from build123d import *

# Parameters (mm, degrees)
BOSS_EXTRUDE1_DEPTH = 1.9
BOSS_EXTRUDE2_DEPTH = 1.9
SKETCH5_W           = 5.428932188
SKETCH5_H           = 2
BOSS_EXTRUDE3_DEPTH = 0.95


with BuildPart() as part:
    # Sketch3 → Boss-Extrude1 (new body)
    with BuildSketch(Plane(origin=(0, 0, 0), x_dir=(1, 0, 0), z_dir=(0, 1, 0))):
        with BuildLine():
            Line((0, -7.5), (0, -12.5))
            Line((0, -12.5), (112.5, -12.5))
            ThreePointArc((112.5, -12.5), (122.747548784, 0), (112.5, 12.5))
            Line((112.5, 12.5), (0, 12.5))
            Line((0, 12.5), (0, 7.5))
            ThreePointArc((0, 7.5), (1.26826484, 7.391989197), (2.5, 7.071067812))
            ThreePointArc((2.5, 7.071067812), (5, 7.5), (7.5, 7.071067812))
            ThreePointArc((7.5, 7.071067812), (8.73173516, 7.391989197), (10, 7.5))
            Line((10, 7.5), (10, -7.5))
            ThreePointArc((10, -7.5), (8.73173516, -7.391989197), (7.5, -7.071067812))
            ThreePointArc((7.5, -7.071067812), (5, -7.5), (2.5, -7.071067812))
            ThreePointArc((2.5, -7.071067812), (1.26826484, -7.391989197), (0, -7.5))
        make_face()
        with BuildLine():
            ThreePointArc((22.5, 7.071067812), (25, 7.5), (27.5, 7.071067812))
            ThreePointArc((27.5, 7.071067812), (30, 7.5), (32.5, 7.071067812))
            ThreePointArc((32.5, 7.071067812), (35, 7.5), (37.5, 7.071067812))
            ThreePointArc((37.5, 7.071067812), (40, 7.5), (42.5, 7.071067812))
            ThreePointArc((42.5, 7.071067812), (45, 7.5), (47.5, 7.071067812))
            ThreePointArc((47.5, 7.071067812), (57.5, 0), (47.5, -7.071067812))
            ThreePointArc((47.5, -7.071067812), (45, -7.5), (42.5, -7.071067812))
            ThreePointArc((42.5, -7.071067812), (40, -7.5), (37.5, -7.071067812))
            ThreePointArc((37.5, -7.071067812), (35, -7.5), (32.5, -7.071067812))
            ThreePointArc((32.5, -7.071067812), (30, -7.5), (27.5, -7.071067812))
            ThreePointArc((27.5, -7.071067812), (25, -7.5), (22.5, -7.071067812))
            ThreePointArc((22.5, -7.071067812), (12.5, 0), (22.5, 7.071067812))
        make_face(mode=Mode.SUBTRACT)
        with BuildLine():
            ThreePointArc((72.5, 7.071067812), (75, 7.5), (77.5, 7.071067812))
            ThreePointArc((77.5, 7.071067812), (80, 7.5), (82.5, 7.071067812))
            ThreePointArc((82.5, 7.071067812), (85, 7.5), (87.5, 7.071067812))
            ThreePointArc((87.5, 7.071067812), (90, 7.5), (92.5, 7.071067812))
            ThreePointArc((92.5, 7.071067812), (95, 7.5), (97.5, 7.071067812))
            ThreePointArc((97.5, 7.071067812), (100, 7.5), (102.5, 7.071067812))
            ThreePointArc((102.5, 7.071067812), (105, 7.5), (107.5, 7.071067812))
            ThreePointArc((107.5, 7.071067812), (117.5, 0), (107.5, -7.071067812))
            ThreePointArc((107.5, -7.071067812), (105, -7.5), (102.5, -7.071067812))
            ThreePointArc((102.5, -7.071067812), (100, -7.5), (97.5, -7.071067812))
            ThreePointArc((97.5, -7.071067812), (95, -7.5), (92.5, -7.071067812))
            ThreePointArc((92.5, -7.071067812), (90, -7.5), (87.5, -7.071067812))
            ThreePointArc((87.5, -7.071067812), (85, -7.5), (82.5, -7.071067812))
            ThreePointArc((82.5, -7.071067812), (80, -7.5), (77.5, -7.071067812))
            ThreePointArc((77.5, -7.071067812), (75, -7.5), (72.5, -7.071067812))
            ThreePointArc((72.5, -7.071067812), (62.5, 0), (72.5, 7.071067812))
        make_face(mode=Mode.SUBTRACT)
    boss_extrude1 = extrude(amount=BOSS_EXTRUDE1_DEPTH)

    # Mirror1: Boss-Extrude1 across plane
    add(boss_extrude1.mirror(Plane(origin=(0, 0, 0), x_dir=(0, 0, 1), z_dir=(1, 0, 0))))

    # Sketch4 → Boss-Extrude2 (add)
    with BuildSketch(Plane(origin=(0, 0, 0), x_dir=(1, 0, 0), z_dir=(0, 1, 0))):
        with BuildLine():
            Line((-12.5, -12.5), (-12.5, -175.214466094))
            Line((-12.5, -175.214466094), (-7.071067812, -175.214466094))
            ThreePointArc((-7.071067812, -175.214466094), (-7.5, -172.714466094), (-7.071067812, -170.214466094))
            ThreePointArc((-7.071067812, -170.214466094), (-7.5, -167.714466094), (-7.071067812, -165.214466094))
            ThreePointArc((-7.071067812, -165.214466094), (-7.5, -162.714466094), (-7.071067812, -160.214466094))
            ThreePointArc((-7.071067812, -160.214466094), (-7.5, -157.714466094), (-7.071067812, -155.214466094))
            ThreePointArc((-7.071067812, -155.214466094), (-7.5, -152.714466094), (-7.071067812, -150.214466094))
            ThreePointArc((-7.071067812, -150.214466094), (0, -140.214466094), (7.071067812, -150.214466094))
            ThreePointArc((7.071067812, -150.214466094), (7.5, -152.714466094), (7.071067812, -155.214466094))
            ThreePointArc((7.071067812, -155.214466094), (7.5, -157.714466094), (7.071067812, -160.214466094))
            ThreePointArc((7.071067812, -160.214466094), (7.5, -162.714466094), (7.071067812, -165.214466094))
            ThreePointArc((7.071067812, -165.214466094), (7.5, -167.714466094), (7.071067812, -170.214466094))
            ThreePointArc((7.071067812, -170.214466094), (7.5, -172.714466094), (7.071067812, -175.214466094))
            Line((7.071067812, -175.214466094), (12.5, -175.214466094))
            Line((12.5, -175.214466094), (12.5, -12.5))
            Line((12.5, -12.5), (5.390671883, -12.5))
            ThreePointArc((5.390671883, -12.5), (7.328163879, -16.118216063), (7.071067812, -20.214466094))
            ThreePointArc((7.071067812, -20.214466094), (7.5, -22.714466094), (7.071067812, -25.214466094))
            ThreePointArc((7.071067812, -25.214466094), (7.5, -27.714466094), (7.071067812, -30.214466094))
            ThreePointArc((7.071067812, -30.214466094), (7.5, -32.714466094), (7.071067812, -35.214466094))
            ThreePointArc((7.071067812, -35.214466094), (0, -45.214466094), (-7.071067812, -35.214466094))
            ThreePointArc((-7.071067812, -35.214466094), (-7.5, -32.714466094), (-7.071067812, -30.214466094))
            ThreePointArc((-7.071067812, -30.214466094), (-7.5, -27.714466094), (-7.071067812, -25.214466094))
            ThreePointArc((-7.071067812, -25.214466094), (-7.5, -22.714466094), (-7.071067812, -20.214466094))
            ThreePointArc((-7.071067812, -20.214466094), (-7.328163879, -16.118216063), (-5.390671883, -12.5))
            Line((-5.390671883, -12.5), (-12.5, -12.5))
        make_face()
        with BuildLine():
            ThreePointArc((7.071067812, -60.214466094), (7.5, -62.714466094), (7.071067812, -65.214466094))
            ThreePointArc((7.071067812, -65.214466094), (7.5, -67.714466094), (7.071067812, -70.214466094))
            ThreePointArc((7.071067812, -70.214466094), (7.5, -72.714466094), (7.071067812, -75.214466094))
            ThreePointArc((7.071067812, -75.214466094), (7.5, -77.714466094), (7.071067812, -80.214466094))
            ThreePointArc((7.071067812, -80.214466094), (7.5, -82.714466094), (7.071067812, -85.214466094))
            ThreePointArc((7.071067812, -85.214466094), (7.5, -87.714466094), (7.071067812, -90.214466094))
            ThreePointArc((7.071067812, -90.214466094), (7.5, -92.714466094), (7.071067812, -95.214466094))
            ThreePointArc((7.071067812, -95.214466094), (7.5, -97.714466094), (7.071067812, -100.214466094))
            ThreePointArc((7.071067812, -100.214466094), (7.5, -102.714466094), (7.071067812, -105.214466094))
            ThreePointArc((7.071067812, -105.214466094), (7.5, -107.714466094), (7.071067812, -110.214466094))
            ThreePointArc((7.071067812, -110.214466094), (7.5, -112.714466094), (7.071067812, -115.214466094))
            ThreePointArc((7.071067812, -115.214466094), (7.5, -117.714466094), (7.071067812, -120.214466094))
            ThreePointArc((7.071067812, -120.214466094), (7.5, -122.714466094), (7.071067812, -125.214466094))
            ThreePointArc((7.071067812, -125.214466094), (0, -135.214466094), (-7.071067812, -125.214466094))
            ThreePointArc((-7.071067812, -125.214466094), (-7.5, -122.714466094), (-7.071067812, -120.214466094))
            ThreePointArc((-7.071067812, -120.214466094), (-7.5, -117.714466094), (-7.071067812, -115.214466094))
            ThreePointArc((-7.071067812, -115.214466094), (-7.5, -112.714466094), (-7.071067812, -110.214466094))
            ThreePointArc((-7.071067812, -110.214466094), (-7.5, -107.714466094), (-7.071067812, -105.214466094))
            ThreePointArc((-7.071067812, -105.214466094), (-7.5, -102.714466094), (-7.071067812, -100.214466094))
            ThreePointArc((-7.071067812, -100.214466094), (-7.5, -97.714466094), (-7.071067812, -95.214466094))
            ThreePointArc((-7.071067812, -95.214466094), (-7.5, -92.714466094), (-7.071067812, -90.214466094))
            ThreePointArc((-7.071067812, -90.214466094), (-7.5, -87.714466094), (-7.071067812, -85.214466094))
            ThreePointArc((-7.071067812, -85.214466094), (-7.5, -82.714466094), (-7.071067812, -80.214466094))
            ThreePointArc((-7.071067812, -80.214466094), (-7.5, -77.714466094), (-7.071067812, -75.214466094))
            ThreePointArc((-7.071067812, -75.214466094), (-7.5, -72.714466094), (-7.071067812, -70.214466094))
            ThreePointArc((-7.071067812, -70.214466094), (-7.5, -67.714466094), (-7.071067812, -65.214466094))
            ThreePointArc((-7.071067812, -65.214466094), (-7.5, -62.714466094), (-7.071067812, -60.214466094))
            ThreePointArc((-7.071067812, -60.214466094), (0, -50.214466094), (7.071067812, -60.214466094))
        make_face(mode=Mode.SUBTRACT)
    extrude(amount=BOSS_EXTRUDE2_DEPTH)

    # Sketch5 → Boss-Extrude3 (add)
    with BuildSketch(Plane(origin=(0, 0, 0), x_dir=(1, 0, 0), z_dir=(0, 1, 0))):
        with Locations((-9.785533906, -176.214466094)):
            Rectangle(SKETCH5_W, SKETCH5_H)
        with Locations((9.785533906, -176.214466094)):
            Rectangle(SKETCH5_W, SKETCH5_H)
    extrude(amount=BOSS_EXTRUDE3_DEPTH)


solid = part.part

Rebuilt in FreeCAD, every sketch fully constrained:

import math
import FreeCAD as App
import Part
import Sketcher

V = App.Vector
Q = App.Units.Quantity

doc = App.newDocument("Part")
body = doc.addObject("PartDesign::Body", "Body")

# Sketch on XZ plane
sketch1 = body.newObject("Sketcher::SketchObject", "Sketch")
sketch1.AttachmentSupport = (doc.getObject("XZ_Plane"), [""])
sketch1.MapMode = "FlatFace"
sketch1.addGeometry(Part.LineSegment(V(0, 7.5, 0), V(0, 12.5, 0)), False)
sketch1.addGeometry(Part.LineSegment(V(0, 12.5, 0), V(112.5, 12.5, 0)), False)
sketch1.addGeometry(Part.ArcOfCircle(Part.Circle(V(110, 0, 0), V(0, 0, 1), 12.7), math.radians(-79), math.radians(79)), False)
sketch1.addGeometry(Part.LineSegment(V(112.5, -12.5, 0), V(0, -12.5, 0)), False)
sketch1.addGeometry(Part.LineSegment(V(0, -12.5, 0), V(0, -7.5, 0)), False)
sketch1.addGeometry(Part.ArcOfCircle(Part.Circle(V(0, 0, 0), V(0, 0, 1), 7.5), math.radians(-90), math.radians(-70.53)), False)
sketch1.addGeometry(Part.ArcOfCircle(Part.Circle(V(5, 0, 0), V(0, 0, 1), 7.5), math.radians(-109), math.radians(-71)), False)
sketch1.addGeometry(Part.ArcOfCircle(Part.Circle(V(10, 0, 0), V(0, 0, 1), 7.5), math.radians(-109.47), math.radians(-90)), False)
sketch1.addGeometry(Part.LineSegment(V(10, -7.5, 0), V(10, 7.5, 0)), False)
sketch1.addGeometry(Part.ArcOfCircle(Part.Circle(V(10, 0, 0), V(0, 0, 1), 7.5), math.radians(90), math.radians(109.47)), False)
sketch1.addGeometry(Part.ArcOfCircle(Part.Circle(V(5, 0, 0), V(0, 0, 1), 7.5), math.radians(71), math.radians(109)), False)
sketch1.addGeometry(Part.ArcOfCircle(Part.Circle(V(0, 0, 0), V(0, 0, 1), 7.5), math.radians(70.53), math.radians(90)), False)
sketch1.addGeometry(Part.ArcOfCircle(Part.Circle(V(20, 0, 0), V(0, 0, 1), 7.5), math.radians(71), math.radians(289)), False)
sketch1.addGeometry(Part.ArcOfCircle(Part.Circle(V(25, 0, 0), V(0, 0, 1), 7.5), math.radians(-109), math.radians(-71)), False)
sketch1.addGeometry(Part.ArcOfCircle(Part.Circle(V(30, 0, 0), V(0, 0, 1), 7.5), math.radians(-109), math.radians(-71)), False)
sketch1.addGeometry(Part.ArcOfCircle(Part.Circle(V(35, 0, 0), V(0, 0, 1), 7.5), math.radians(-109), math.radians(-71)), False)
sketch1.addGeometry(Part.ArcOfCircle(Part.Circle(V(40, 0, 0), V(0, 0, 1), 7.5), math.radians(-109), math.radians(-71)), False)
sketch1.addGeometry(Part.ArcOfCircle(Part.Circle(V(45, 0, 0), V(0, 0, 1), 7.5), math.radians(-109), math.radians(-71)), False)
sketch1.addGeometry(Part.ArcOfCircle(Part.Circle(V(50, 0, 0), V(0, 0, 1), 7.5), math.radians(-109), math.radians(109)), False)
sketch1.addGeometry(Part.ArcOfCircle(Part.Circle(V(45, 0, 0), V(0, 0, 1), 7.5), math.radians(71), math.radians(109)), False)
sketch1.addGeometry(Part.ArcOfCircle(Part.Circle(V(40, 0, 0), V(0, 0, 1), 7.5), math.radians(71), math.radians(109)), False)
sketch1.addGeometry(Part.ArcOfCircle(Part.Circle(V(35, 0, 0), V(0, 0, 1), 7.5), math.radians(71), math.radians(109)), False)
sketch1.addGeometry(Part.ArcOfCircle(Part.Circle(V(30, 0, 0), V(0, 0, 1), 7.5), math.radians(71), math.radians(109)), False)
sketch1.addGeometry(Part.ArcOfCircle(Part.Circle(V(25, 0, 0), V(0, 0, 1), 7.5), math.radians(71), math.radians(109)), False)
sketch1.addGeometry(Part.ArcOfCircle(Part.Circle(V(70, 0, 0), V(0, 0, 1), 7.5), math.radians(71), math.radians(289)), False)
sketch1.addGeometry(Part.ArcOfCircle(Part.Circle(V(75, 0, 0), V(0, 0, 1), 7.5), math.radians(-109), math.radians(-71)), False)
sketch1.addGeometry(Part.ArcOfCircle(Part.Circle(V(80, 0, 0), V(0, 0, 1), 7.5), math.radians(-109), math.radians(-71)), False)
sketch1.addGeometry(Part.ArcOfCircle(Part.Circle(V(85, 0, 0), V(0, 0, 1), 7.5), math.radians(-109), math.radians(-71)), False)
sketch1.addGeometry(Part.ArcOfCircle(Part.Circle(V(90, 0, 0), V(0, 0, 1), 7.5), math.radians(-109), math.radians(-71)), False)
sketch1.addGeometry(Part.ArcOfCircle(Part.Circle(V(95, 0, 0), V(0, 0, 1), 7.5), math.radians(-109), math.radians(-71)), False)
sketch1.addGeometry(Part.ArcOfCircle(Part.Circle(V(100, 0, 0), V(0, 0, 1), 7.5), math.radians(-109), math.radians(-71)), False)
sketch1.addGeometry(Part.ArcOfCircle(Part.Circle(V(105, 0, 0), V(0, 0, 1), 7.5), math.radians(-109), math.radians(-71)), False)
sketch1.addGeometry(Part.ArcOfCircle(Part.Circle(V(110, 0, 0), V(0, 0, 1), 7.5), math.radians(-109), math.radians(109)), False)
sketch1.addGeometry(Part.ArcOfCircle(Part.Circle(V(105, 0, 0), V(0, 0, 1), 7.5), math.radians(71), math.radians(109)), False)
sketch1.addGeometry(Part.ArcOfCircle(Part.Circle(V(100, 0, 0), V(0, 0, 1), 7.5), math.radians(71), math.radians(109)), False)
sketch1.addGeometry(Part.ArcOfCircle(Part.Circle(V(95, 0, 0), V(0, 0, 1), 7.5), math.radians(71), math.radians(109)), False)
sketch1.addGeometry(Part.ArcOfCircle(Part.Circle(V(90, 0, 0), V(0, 0, 1), 7.5), math.radians(71), math.radians(109)), False)
sketch1.addGeometry(Part.ArcOfCircle(Part.Circle(V(85, 0, 0), V(0, 0, 1), 7.5), math.radians(71), math.radians(109)), False)
sketch1.addGeometry(Part.ArcOfCircle(Part.Circle(V(80, 0, 0), V(0, 0, 1), 7.5), math.radians(71), math.radians(109)), False)
sketch1.addGeometry(Part.ArcOfCircle(Part.Circle(V(75, 0, 0), V(0, 0, 1), 7.5), math.radians(71), math.radians(109)), False)
sketch1.addConstraint(Sketcher.Constraint("Coincident", 0, 2, 1, 1))
sketch1.addConstraint(Sketcher.Constraint("Coincident", 1, 2, 2, 2))
sketch1.addConstraint(Sketcher.Constraint("Coincident", 2, 1, 3, 1))
sketch1.addConstraint(Sketcher.Constraint("Coincident", 3, 2, 4, 1))
sketch1.addConstraint(Sketcher.Constraint("Coincident", 4, 2, 5, 1))
sketch1.addConstraint(Sketcher.Constraint("Coincident", 5, 2, 6, 1))
sketch1.addConstraint(Sketcher.Constraint("Coincident", 6, 2, 7, 1))
sketch1.addConstraint(Sketcher.Constraint("Coincident", 7, 2, 8, 1))
sketch1.addConstraint(Sketcher.Constraint("Coincident", 8, 2, 9, 1))
sketch1.addConstraint(Sketcher.Constraint("Coincident", 9, 2, 10, 1))
sketch1.addConstraint(Sketcher.Constraint("Coincident", 10, 2, 11, 1))
sketch1.addConstraint(Sketcher.Constraint("Coincident", 11, 2, 0, 1))
sketch1.addConstraint(Sketcher.Constraint("Coincident", 12, 2, 13, 1))
sketch1.addConstraint(Sketcher.Constraint("Coincident", 13, 2, 14, 1))
sketch1.addConstraint(Sketcher.Constraint("Coincident", 14, 2, 15, 1))
sketch1.addConstraint(Sketcher.Constraint("Coincident", 15, 2, 16, 1))
sketch1.addConstraint(Sketcher.Constraint("Coincident", 16, 2, 17, 1))
sketch1.addConstraint(Sketcher.Constraint("Coincident", 17, 2, 18, 1))
sketch1.addConstraint(Sketcher.Constraint("Coincident", 18, 2, 19, 1))
sketch1.addConstraint(Sketcher.Constraint("Coincident", 19, 2, 20, 1))
sketch1.addConstraint(Sketcher.Constraint("Coincident", 20, 2, 21, 1))
sketch1.addConstraint(Sketcher.Constraint("Coincident", 21, 2, 22, 1))
sketch1.addConstraint(Sketcher.Constraint("Coincident", 22, 2, 23, 1))
sketch1.addConstraint(Sketcher.Constraint("Coincident", 23, 2, 12, 1))
sketch1.addConstraint(Sketcher.Constraint("Coincident", 24, 2, 25, 1))
sketch1.addConstraint(Sketcher.Constraint("Coincident", 25, 2, 26, 1))
sketch1.addConstraint(Sketcher.Constraint("Coincident", 26, 2, 27, 1))
sketch1.addConstraint(Sketcher.Constraint("Coincident", 27, 2, 28, 1))
sketch1.addConstraint(Sketcher.Constraint("Coincident", 28, 2, 29, 1))
sketch1.addConstraint(Sketcher.Constraint("Coincident", 29, 2, 30, 1))
sketch1.addConstraint(Sketcher.Constraint("Coincident", 30, 2, 31, 1))
sketch1.addConstraint(Sketcher.Constraint("Coincident", 31, 2, 32, 1))
sketch1.addConstraint(Sketcher.Constraint("Coincident", 32, 2, 33, 1))
sketch1.addConstraint(Sketcher.Constraint("Coincident", 33, 2, 34, 1))
sketch1.addConstraint(Sketcher.Constraint("Coincident", 34, 2, 35, 1))
sketch1.addConstraint(Sketcher.Constraint("Coincident", 35, 2, 36, 1))
sketch1.addConstraint(Sketcher.Constraint("Coincident", 36, 2, 37, 1))
sketch1.addConstraint(Sketcher.Constraint("Coincident", 37, 2, 38, 1))
sketch1.addConstraint(Sketcher.Constraint("Coincident", 38, 2, 39, 1))
sketch1.addConstraint(Sketcher.Constraint("Coincident", 39, 2, 24, 1))
sketch1.addConstraint(Sketcher.Constraint("Vertical", 0))
sketch1.addConstraint(Sketcher.Constraint("Horizontal", 1))
sketch1.addConstraint(Sketcher.Constraint("Horizontal", 3))
sketch1.addConstraint(Sketcher.Constraint("Vertical", 4))
sketch1.addConstraint(Sketcher.Constraint("Vertical", 8))
sketch1.addConstraint(Sketcher.Constraint("Coincident", 5, 3, -1, 1))
sketch1.addConstraint(Sketcher.Constraint("Coincident", 11, 3, -1, 1))
sketch1.addConstraint(Sketcher.Constraint("Coincident", 9, 3, 7, 3))
sketch1.addConstraint(Sketcher.Constraint("Coincident", 10, 3, 6, 3))
sketch1.addConstraint(Sketcher.Constraint("Coincident", 19, 3, 17, 3))
sketch1.addConstraint(Sketcher.Constraint("Coincident", 20, 3, 16, 3))
sketch1.addConstraint(Sketcher.Constraint("Coincident", 21, 3, 15, 3))
sketch1.addConstraint(Sketcher.Constraint("Coincident", 22, 3, 14, 3))
sketch1.addConstraint(Sketcher.Constraint("Coincident", 23, 3, 13, 3))
sketch1.addConstraint(Sketcher.Constraint("Coincident", 32, 3, 2, 3))
sketch1.addConstraint(Sketcher.Constraint("Coincident", 33, 3, 31, 3))
sketch1.addConstraint(Sketcher.Constraint("Coincident", 34, 3, 30, 3))
sketch1.addConstraint(Sketcher.Constraint("Coincident", 35, 3, 29, 3))
sketch1.addConstraint(Sketcher.Constraint("Coincident", 36, 3, 28, 3))
sketch1.addConstraint(Sketcher.Constraint("Coincident", 37, 3, 27, 3))
sketch1.addConstraint(Sketcher.Constraint("Coincident", 38, 3, 26, 3))
sketch1.addConstraint(Sketcher.Constraint("Coincident", 39, 3, 25, 3))
sketch1.addConstraint(Sketcher.Constraint("Equal", 5, 6))
sketch1.addConstraint(Sketcher.Constraint("Equal", 6, 7))
sketch1.addConstraint(Sketcher.Constraint("Equal", 7, 9))
sketch1.addConstraint(Sketcher.Constraint("Equal", 9, 10))
sketch1.addConstraint(Sketcher.Constraint("Equal", 10, 11))
sketch1.addConstraint(Sketcher.Constraint("Equal", 11, 12))
sketch1.addConstraint(Sketcher.Constraint("Equal", 12, 13))
sketch1.addConstraint(Sketcher.Constraint("Equal", 13, 14))
sketch1.addConstraint(Sketcher.Constraint("Equal", 14, 15))
sketch1.addConstraint(Sketcher.Constraint("Equal", 15, 16))
sketch1.addConstraint(Sketcher.Constraint("Equal", 16, 17))
sketch1.addConstraint(Sketcher.Constraint("Equal", 17, 18))
sketch1.addConstraint(Sketcher.Constraint("Equal", 18, 19))
sketch1.addConstraint(Sketcher.Constraint("Equal", 19, 20))
sketch1.addConstraint(Sketcher.Constraint("Equal", 20, 21))
sketch1.addConstraint(Sketcher.Constraint("Equal", 21, 22))
sketch1.addConstraint(Sketcher.Constraint("Equal", 22, 23))
sketch1.addConstraint(Sketcher.Constraint("Equal", 23, 24))
sketch1.addConstraint(Sketcher.Constraint("Equal", 24, 25))
sketch1.addConstraint(Sketcher.Constraint("Equal", 25, 26))
sketch1.addConstraint(Sketcher.Constraint("Equal", 26, 27))
sketch1.addConstraint(Sketcher.Constraint("Equal", 27, 28))
sketch1.addConstraint(Sketcher.Constraint("Equal", 28, 29))
sketch1.addConstraint(Sketcher.Constraint("Equal", 29, 30))
sketch1.addConstraint(Sketcher.Constraint("Equal", 30, 31))
sketch1.addConstraint(Sketcher.Constraint("Equal", 31, 32))
sketch1.addConstraint(Sketcher.Constraint("Equal", 32, 33))
sketch1.addConstraint(Sketcher.Constraint("Equal", 33, 34))
sketch1.addConstraint(Sketcher.Constraint("Equal", 34, 35))
sketch1.addConstraint(Sketcher.Constraint("Equal", 35, 36))
sketch1.addConstraint(Sketcher.Constraint("Equal", 36, 37))
sketch1.addConstraint(Sketcher.Constraint("Equal", 37, 38))
sketch1.addConstraint(Sketcher.Constraint("Equal", 38, 39))
sketch1.addConstraint(Sketcher.Constraint("Symmetric", 0, 2, 3, 2, -1, 1))
sketch1.addConstraint(Sketcher.Constraint("Symmetric", 6, 2, 9, 2, -1))
sketch1.addConstraint(Sketcher.Constraint("Symmetric", 17, 2, 18, 2, -1))
sketch1.addConstraint(Sketcher.Constraint("Symmetric", 15, 2, 20, 2, -1))
sketch1.addConstraint(Sketcher.Constraint("Symmetric", 13, 2, 22, 2, -1))
sketch1.addConstraint(Sketcher.Constraint("Symmetric", 31, 2, 32, 2, -1))
sketch1.addConstraint(Sketcher.Constraint("Symmetric", 29, 2, 34, 2, -1))
sketch1.addConstraint(Sketcher.Constraint("Symmetric", 27, 2, 36, 2, -1))
sketch1.addConstraint(Sketcher.Constraint("Symmetric", 25, 2, 38, 2, -1))
sketch1.addConstraint(Sketcher.Constraint("PointOnObject", 12, 3, -1))
sketch1.addConstraint(Sketcher.Constraint("PointOnObject", 24, 3, -1))
sketch1.addConstraint(Sketcher.Constraint("PointOnObject", 0, 2, -2))
sketch1.addConstraint(Sketcher.Constraint("Horizontal", 5, 2, 6, 2))
sketch1.addConstraint(Sketcher.Constraint("Horizontal", 6, 2, 12, 2))
sketch1.addConstraint(Sketcher.Constraint("Horizontal", 12, 2, 13, 2))
sketch1.addConstraint(Sketcher.Constraint("Horizontal", 13, 2, 14, 2))
sketch1.addConstraint(Sketcher.Constraint("Horizontal", 14, 2, 15, 2))
sketch1.addConstraint(Sketcher.Constraint("Horizontal", 15, 2, 16, 2))
sketch1.addConstraint(Sketcher.Constraint("Horizontal", 16, 2, 17, 2))
sketch1.addConstraint(Sketcher.Constraint("Horizontal", 17, 2, 24, 2))
sketch1.addConstraint(Sketcher.Constraint("Horizontal", 24, 2, 25, 2))
sketch1.addConstraint(Sketcher.Constraint("Horizontal", 25, 2, 26, 2))
sketch1.addConstraint(Sketcher.Constraint("Horizontal", 26, 2, 27, 2))
sketch1.addConstraint(Sketcher.Constraint("Horizontal", 27, 2, 28, 2))
sketch1.addConstraint(Sketcher.Constraint("Horizontal", 28, 2, 29, 2))
sketch1.addConstraint(Sketcher.Constraint("Horizontal", 29, 2, 30, 2))
sketch1.addConstraint(Sketcher.Constraint("Horizontal", 30, 2, 31, 2))
sketch1.addConstraint(Sketcher.Constraint("Vertical", 9, 3, 7, 2))
sketch1.addConstraint(Sketcher.Constraint("Radius", 5, Q("7.5 mm")))
sketch1.addConstraint(Sketcher.Constraint("DistanceY", 0, 1, 0, 2, Q("5 mm")))
sketch1.addConstraint(Sketcher.Constraint("DistanceX", 1, 1, 1, 2, Q("112.5 mm")))
sketch1.addConstraint(Sketcher.Constraint("DistanceX", -1, 1, 2, 3, Q("110 mm")))
sketch1.addConstraint(Sketcher.Constraint("DistanceX", -1, 1, 6, 3, Q("5 mm")))
sketch1.addConstraint(Sketcher.Constraint("DistanceX", -1, 1, 12, 3, Q("20 mm")))
pad1 = body.newObject("PartDesign::Pad", "Pad")
pad1.Profile = sketch1
pad1.Length = 1.9
pad1.Reversed = True
doc.recompute()

mirrored = body.newObject("PartDesign::Mirrored", "Mirrored")
mirrored.Originals = [pad1]
mirrored.MirrorPlane = (doc.getObject("YZ_Plane"), [""])
body.Tip = mirrored

# Sketch on XZ plane
sketch2 = body.newObject("Sketcher::SketchObject", "Sketch001")
sketch2.AttachmentSupport = (doc.getObject("XZ_Plane"), [""])
sketch2.MapMode = "FlatFace"
sketch2.addGeometry(Part.LineSegment(V(-12, 12, 0), V(-12, 175, 0)), False)
sketch2.addGeometry(Part.LineSegment(V(-12, 175, 0), V(-7, 175, 0)), False)
sketch2.addGeometry(Part.ArcOfCircle(Part.Circle(V(0, 173, 0), V(0, 0, 1), 8), math.radians(161), math.radians(199)), False)
sketch2.addGeometry(Part.ArcOfCircle(Part.Circle(V(0, 168, 0), V(0, 0, 1), 8), math.radians(161), math.radians(199)), False)
sketch2.addGeometry(Part.ArcOfCircle(Part.Circle(V(0, 163, 0), V(0, 0, 1), 8), math.radians(161), math.radians(199)), False)
sketch2.addGeometry(Part.ArcOfCircle(Part.Circle(V(0, 158, 0), V(0, 0, 1), 8), math.radians(161), math.radians(199)), False)
sketch2.addGeometry(Part.ArcOfCircle(Part.Circle(V(0, 153, 0), V(0, 0, 1), 8), math.radians(161), math.radians(199)), False)
sketch2.addGeometry(Part.ArcOfCircle(Part.Circle(V(0, 148, 0), V(0, 0, 1), 8), math.radians(161), math.radians(379)), False)
sketch2.addGeometry(Part.ArcOfCircle(Part.Circle(V(0, 153, 0), V(0, 0, 1), 8), math.radians(-19), math.radians(19)), False)
sketch2.addGeometry(Part.ArcOfCircle(Part.Circle(V(0, 158, 0), V(0, 0, 1), 8), math.radians(-19), math.radians(19)), False)
sketch2.addGeometry(Part.ArcOfCircle(Part.Circle(V(0, 163, 0), V(0, 0, 1), 8), math.radians(-19), math.radians(19)), False)
sketch2.addGeometry(Part.ArcOfCircle(Part.Circle(V(0, 168, 0), V(0, 0, 1), 8), math.radians(-19), math.radians(19)), False)
sketch2.addGeometry(Part.ArcOfCircle(Part.Circle(V(0, 173, 0), V(0, 0, 1), 8), math.radians(-19), math.radians(19)), False)
sketch2.addGeometry(Part.LineSegment(V(7, 175, 0), V(12, 175, 0)), False)
sketch2.addGeometry(Part.LineSegment(V(12, 175, 0), V(12, 12, 0)), False)
sketch2.addGeometry(Part.LineSegment(V(12, 12, 0), V(5, 12, 0)), False)
sketch2.addGeometry(Part.ArcOfCircle(Part.Circle(V(0, 18, 0), V(0, 0, 1), 8), math.radians(-44), math.radians(19)), False)
sketch2.addGeometry(Part.ArcOfCircle(Part.Circle(V(0, 23, 0), V(0, 0, 1), 8), math.radians(-19), math.radians(19)), False)
sketch2.addGeometry(Part.ArcOfCircle(Part.Circle(V(0, 28, 0), V(0, 0, 1), 8), math.radians(-19), math.radians(19)), False)
sketch2.addGeometry(Part.ArcOfCircle(Part.Circle(V(0, 33, 0), V(0, 0, 1), 8), math.radians(-19), math.radians(19)), False)
sketch2.addGeometry(Part.ArcOfCircle(Part.Circle(V(0, 38, 0), V(0, 0, 1), 8), math.radians(-19), math.radians(199)), False)
sketch2.addGeometry(Part.ArcOfCircle(Part.Circle(V(0, 33, 0), V(0, 0, 1), 8), math.radians(161), math.radians(199)), False)
sketch2.addGeometry(Part.ArcOfCircle(Part.Circle(V(0, 28, 0), V(0, 0, 1), 8), math.radians(161), math.radians(199)), False)
sketch2.addGeometry(Part.ArcOfCircle(Part.Circle(V(0, 23, 0), V(0, 0, 1), 8), math.radians(161), math.radians(199)), False)
sketch2.addGeometry(Part.ArcOfCircle(Part.Circle(V(0, 18, 0), V(0, 0, 1), 8), math.radians(161), math.radians(224)), False)
sketch2.addGeometry(Part.LineSegment(V(-5, 12, 0), V(-12, 12, 0)), False)
sketch2.addGeometry(Part.ArcOfCircle(Part.Circle(V(0, 58, 0), V(0, 0, 1), 8), math.radians(161), math.radians(379)), False)
sketch2.addGeometry(Part.ArcOfCircle(Part.Circle(V(0, 63, 0), V(0, 0, 1), 8), math.radians(-19), math.radians(19)), False)
sketch2.addGeometry(Part.ArcOfCircle(Part.Circle(V(0, 68, 0), V(0, 0, 1), 8), math.radians(-19), math.radians(19)), False)
sketch2.addGeometry(Part.ArcOfCircle(Part.Circle(V(0, 73, 0), V(0, 0, 1), 8), math.radians(-19), math.radians(19)), False)
sketch2.addGeometry(Part.ArcOfCircle(Part.Circle(V(0, 78, 0), V(0, 0, 1), 8), math.radians(-19), math.radians(19)), False)
sketch2.addGeometry(Part.ArcOfCircle(Part.Circle(V(0, 83, 0), V(0, 0, 1), 8), math.radians(-19), math.radians(19)), False)
sketch2.addGeometry(Part.ArcOfCircle(Part.Circle(V(0, 88, 0), V(0, 0, 1), 8), math.radians(-19), math.radians(19)), False)
sketch2.addGeometry(Part.ArcOfCircle(Part.Circle(V(0, 93, 0), V(0, 0, 1), 8), math.radians(-19), math.radians(19)), False)
sketch2.addGeometry(Part.ArcOfCircle(Part.Circle(V(0, 98, 0), V(0, 0, 1), 8), math.radians(-19), math.radians(19)), False)
sketch2.addGeometry(Part.ArcOfCircle(Part.Circle(V(0, 103, 0), V(0, 0, 1), 8), math.radians(-19), math.radians(19)), False)
sketch2.addGeometry(Part.ArcOfCircle(Part.Circle(V(0, 108, 0), V(0, 0, 1), 8), math.radians(-19), math.radians(19)), False)
sketch2.addGeometry(Part.ArcOfCircle(Part.Circle(V(0, 113, 0), V(0, 0, 1), 8), math.radians(-19), math.radians(19)), False)
sketch2.addGeometry(Part.ArcOfCircle(Part.Circle(V(0, 118, 0), V(0, 0, 1), 8), math.radians(-19), math.radians(19)), False)
sketch2.addGeometry(Part.ArcOfCircle(Part.Circle(V(0, 123, 0), V(0, 0, 1), 8), math.radians(-19), math.radians(19)), False)
sketch2.addGeometry(Part.ArcOfCircle(Part.Circle(V(0, 128, 0), V(0, 0, 1), 8), math.radians(-19), math.radians(199)), False)
sketch2.addGeometry(Part.ArcOfCircle(Part.Circle(V(0, 123, 0), V(0, 0, 1), 8), math.radians(161), math.radians(199)), False)
sketch2.addGeometry(Part.ArcOfCircle(Part.Circle(V(0, 118, 0), V(0, 0, 1), 8), math.radians(161), math.radians(199)), False)
sketch2.addGeometry(Part.ArcOfCircle(Part.Circle(V(0, 113, 0), V(0, 0, 1), 8), math.radians(161), math.radians(199)), False)
sketch2.addGeometry(Part.ArcOfCircle(Part.Circle(V(0, 108, 0), V(0, 0, 1), 8), math.radians(161), math.radians(199)), False)
sketch2.addGeometry(Part.ArcOfCircle(Part.Circle(V(0, 103, 0), V(0, 0, 1), 8), math.radians(161), math.radians(199)), False)
sketch2.addGeometry(Part.ArcOfCircle(Part.Circle(V(0, 98, 0), V(0, 0, 1), 8), math.radians(161), math.radians(199)), False)
sketch2.addGeometry(Part.ArcOfCircle(Part.Circle(V(0, 93, 0), V(0, 0, 1), 8), math.radians(161), math.radians(199)), False)
sketch2.addGeometry(Part.ArcOfCircle(Part.Circle(V(0, 88, 0), V(0, 0, 1), 8), math.radians(161), math.radians(199)), False)
sketch2.addGeometry(Part.ArcOfCircle(Part.Circle(V(0, 83, 0), V(0, 0, 1), 8), math.radians(161), math.radians(199)), False)
sketch2.addGeometry(Part.ArcOfCircle(Part.Circle(V(0, 78, 0), V(0, 0, 1), 8), math.radians(161), math.radians(199)), False)
sketch2.addGeometry(Part.ArcOfCircle(Part.Circle(V(0, 73, 0), V(0, 0, 1), 8), math.radians(161), math.radians(199)), False)
sketch2.addGeometry(Part.ArcOfCircle(Part.Circle(V(0, 68, 0), V(0, 0, 1), 8), math.radians(161), math.radians(199)), False)
sketch2.addGeometry(Part.ArcOfCircle(Part.Circle(V(0, 63, 0), V(0, 0, 1), 8), math.radians(161), math.radians(199)), False)
sketch2.addConstraint(Sketcher.Constraint("Coincident", 0, 2, 1, 1))
sketch2.addConstraint(Sketcher.Constraint("Coincident", 1, 2, 2, 1))
sketch2.addConstraint(Sketcher.Constraint("Coincident", 2, 2, 3, 1))
sketch2.addConstraint(Sketcher.Constraint("Coincident", 3, 2, 4, 1))
sketch2.addConstraint(Sketcher.Constraint("Coincident", 4, 2, 5, 1))
sketch2.addConstraint(Sketcher.Constraint("Coincident", 5, 2, 6, 1))
sketch2.addConstraint(Sketcher.Constraint("Coincident", 6, 2, 7, 1))
sketch2.addConstraint(Sketcher.Constraint("Coincident", 7, 2, 8, 1))
sketch2.addConstraint(Sketcher.Constraint("Coincident", 8, 2, 9, 1))
sketch2.addConstraint(Sketcher.Constraint("Coincident", 9, 2, 10, 1))
sketch2.addConstraint(Sketcher.Constraint("Coincident", 10, 2, 11, 1))
sketch2.addConstraint(Sketcher.Constraint("Coincident", 11, 2, 12, 1))
sketch2.addConstraint(Sketcher.Constraint("Coincident", 12, 2, 13, 1))
sketch2.addConstraint(Sketcher.Constraint("Coincident", 13, 2, 14, 1))
sketch2.addConstraint(Sketcher.Constraint("Coincident", 14, 2, 15, 1))
sketch2.addConstraint(Sketcher.Constraint("Coincident", 15, 2, 16, 1))
sketch2.addConstraint(Sketcher.Constraint("Coincident", 16, 2, 17, 1))
sketch2.addConstraint(Sketcher.Constraint("Coincident", 17, 2, 18, 1))
sketch2.addConstraint(Sketcher.Constraint("Coincident", 18, 2, 19, 1))
sketch2.addConstraint(Sketcher.Constraint("Coincident", 19, 2, 20, 1))
sketch2.addConstraint(Sketcher.Constraint("Coincident", 20, 2, 21, 1))
sketch2.addConstraint(Sketcher.Constraint("Coincident", 21, 2, 22, 1))
sketch2.addConstraint(Sketcher.Constraint("Coincident", 22, 2, 23, 1))
sketch2.addConstraint(Sketcher.Constraint("Coincident", 23, 2, 24, 1))
sketch2.addConstraint(Sketcher.Constraint("Coincident", 24, 2, 25, 1))
sketch2.addConstraint(Sketcher.Constraint("Coincident", 25, 2, 0, 1))
sketch2.addConstraint(Sketcher.Constraint("Coincident", 26, 2, 27, 1))
sketch2.addConstraint(Sketcher.Constraint("Coincident", 27, 2, 28, 1))
sketch2.addConstraint(Sketcher.Constraint("Coincident", 28, 2, 29, 1))
sketch2.addConstraint(Sketcher.Constraint("Coincident", 29, 2, 30, 1))
sketch2.addConstraint(Sketcher.Constraint("Coincident", 30, 2, 31, 1))
sketch2.addConstraint(Sketcher.Constraint("Coincident", 31, 2, 32, 1))
sketch2.addConstraint(Sketcher.Constraint("Coincident", 32, 2, 33, 1))
sketch2.addConstraint(Sketcher.Constraint("Coincident", 33, 2, 34, 1))
sketch2.addConstraint(Sketcher.Constraint("Coincident", 34, 2, 35, 1))
sketch2.addConstraint(Sketcher.Constraint("Coincident", 35, 2, 36, 1))
sketch2.addConstraint(Sketcher.Constraint("Coincident", 36, 2, 37, 1))
sketch2.addConstraint(Sketcher.Constraint("Coincident", 37, 2, 38, 1))
sketch2.addConstraint(Sketcher.Constraint("Coincident", 38, 2, 39, 1))
sketch2.addConstraint(Sketcher.Constraint("Coincident", 39, 2, 40, 1))
sketch2.addConstraint(Sketcher.Constraint("Coincident", 40, 2, 41, 1))
sketch2.addConstraint(Sketcher.Constraint("Coincident", 41, 2, 42, 1))
sketch2.addConstraint(Sketcher.Constraint("Coincident", 42, 2, 43, 1))
sketch2.addConstraint(Sketcher.Constraint("Coincident", 43, 2, 44, 1))
sketch2.addConstraint(Sketcher.Constraint("Coincident", 44, 2, 45, 1))
sketch2.addConstraint(Sketcher.Constraint("Coincident", 45, 2, 46, 1))
sketch2.addConstraint(Sketcher.Constraint("Coincident", 46, 2, 47, 1))
sketch2.addConstraint(Sketcher.Constraint("Coincident", 47, 2, 48, 1))
sketch2.addConstraint(Sketcher.Constraint("Coincident", 48, 2, 49, 1))
sketch2.addConstraint(Sketcher.Constraint("Coincident", 49, 2, 50, 1))
sketch2.addConstraint(Sketcher.Constraint("Coincident", 50, 2, 51, 1))
sketch2.addConstraint(Sketcher.Constraint("Coincident", 51, 2, 52, 1))
sketch2.addConstraint(Sketcher.Constraint("Coincident", 52, 2, 53, 1))
sketch2.addConstraint(Sketcher.Constraint("Coincident", 53, 2, 26, 1))
sketch2.addConstraint(Sketcher.Constraint("Vertical", 0))
sketch2.addConstraint(Sketcher.Constraint("Horizontal", 1))
sketch2.addConstraint(Sketcher.Constraint("Horizontal", 13))
sketch2.addConstraint(Sketcher.Constraint("Vertical", 14))
sketch2.addConstraint(Sketcher.Constraint("Horizontal", 15))
sketch2.addConstraint(Sketcher.Constraint("Horizontal", 25))
sketch2.addConstraint(Sketcher.Constraint("Coincident", 8, 3, 6, 3))
sketch2.addConstraint(Sketcher.Constraint("Coincident", 9, 3, 5, 3))
sketch2.addConstraint(Sketcher.Constraint("Coincident", 10, 3, 4, 3))
sketch2.addConstraint(Sketcher.Constraint("Coincident", 11, 3, 3, 3))
sketch2.addConstraint(Sketcher.Constraint("Coincident", 12, 3, 2, 3))
sketch2.addConstraint(Sketcher.Constraint("Coincident", 21, 3, 19, 3))
sketch2.addConstraint(Sketcher.Constraint("Coincident", 22, 3, 18, 3))
sketch2.addConstraint(Sketcher.Constraint("Coincident", 23, 3, 17, 3))
sketch2.addConstraint(Sketcher.Constraint("Coincident", 24, 3, 16, 3))
sketch2.addConstraint(Sketcher.Constraint("Coincident", 41, 3, 39, 3))
sketch2.addConstraint(Sketcher.Constraint("Coincident", 42, 3, 38, 3))
sketch2.addConstraint(Sketcher.Constraint("Coincident", 43, 3, 37, 3))
sketch2.addConstraint(Sketcher.Constraint("Coincident", 44, 3, 36, 3))
sketch2.addConstraint(Sketcher.Constraint("Coincident", 45, 3, 35, 3))
sketch2.addConstraint(Sketcher.Constraint("Coincident", 46, 3, 34, 3))
sketch2.addConstraint(Sketcher.Constraint("Coincident", 47, 3, 33, 3))
sketch2.addConstraint(Sketcher.Constraint("Coincident", 48, 3, 32, 3))
sketch2.addConstraint(Sketcher.Constraint("Coincident", 49, 3, 31, 3))
sketch2.addConstraint(Sketcher.Constraint("Coincident", 50, 3, 30, 3))
sketch2.addConstraint(Sketcher.Constraint("Coincident", 51, 3, 29, 3))
sketch2.addConstraint(Sketcher.Constraint("Coincident", 52, 3, 28, 3))
sketch2.addConstraint(Sketcher.Constraint("Coincident", 53, 3, 27, 3))
sketch2.addConstraint(Sketcher.Constraint("Equal", 2, 3))
sketch2.addConstraint(Sketcher.Constraint("Equal", 3, 4))
sketch2.addConstraint(Sketcher.Constraint("Equal", 4, 5))
sketch2.addConstraint(Sketcher.Constraint("Equal", 5, 6))
sketch2.addConstraint(Sketcher.Constraint("Equal", 6, 7))
sketch2.addConstraint(Sketcher.Constraint("Equal", 7, 8))
sketch2.addConstraint(Sketcher.Constraint("Equal", 8, 9))
sketch2.addConstraint(Sketcher.Constraint("Equal", 9, 10))
sketch2.addConstraint(Sketcher.Constraint("Equal", 10, 11))
sketch2.addConstraint(Sketcher.Constraint("Equal", 11, 12))
sketch2.addConstraint(Sketcher.Constraint("Equal", 12, 16))
sketch2.addConstraint(Sketcher.Constraint("Equal", 16, 17))
sketch2.addConstraint(Sketcher.Constraint("Equal", 17, 18))
sketch2.addConstraint(Sketcher.Constraint("Equal", 18, 19))
sketch2.addConstraint(Sketcher.Constraint("Equal", 19, 20))
sketch2.addConstraint(Sketcher.Constraint("Equal", 20, 21))
sketch2.addConstraint(Sketcher.Constraint("Equal", 21, 22))
sketch2.addConstraint(Sketcher.Constraint("Equal", 22, 23))
sketch2.addConstraint(Sketcher.Constraint("Equal", 23, 24))
sketch2.addConstraint(Sketcher.Constraint("Equal", 24, 26))
sketch2.addConstraint(Sketcher.Constraint("Equal", 26, 27))
sketch2.addConstraint(Sketcher.Constraint("Equal", 27, 28))
sketch2.addConstraint(Sketcher.Constraint("Equal", 28, 29))
sketch2.addConstraint(Sketcher.Constraint("Equal", 29, 30))
sketch2.addConstraint(Sketcher.Constraint("Equal", 30, 31))
sketch2.addConstraint(Sketcher.Constraint("Equal", 31, 32))
sketch2.addConstraint(Sketcher.Constraint("Equal", 32, 33))
sketch2.addConstraint(Sketcher.Constraint("Equal", 33, 34))
sketch2.addConstraint(Sketcher.Constraint("Equal", 34, 35))
sketch2.addConstraint(Sketcher.Constraint("Equal", 35, 36))
sketch2.addConstraint(Sketcher.Constraint("Equal", 36, 37))
sketch2.addConstraint(Sketcher.Constraint("Equal", 37, 38))
sketch2.addConstraint(Sketcher.Constraint("Equal", 38, 39))
sketch2.addConstraint(Sketcher.Constraint("Equal", 39, 40))
sketch2.addConstraint(Sketcher.Constraint("Equal", 40, 41))
sketch2.addConstraint(Sketcher.Constraint("Equal", 41, 42))
sketch2.addConstraint(Sketcher.Constraint("Equal", 42, 43))
sketch2.addConstraint(Sketcher.Constraint("Equal", 43, 44))
sketch2.addConstraint(Sketcher.Constraint("Equal", 44, 45))
sketch2.addConstraint(Sketcher.Constraint("Equal", 45, 46))
sketch2.addConstraint(Sketcher.Constraint("Equal", 46, 47))
sketch2.addConstraint(Sketcher.Constraint("Equal", 47, 48))
sketch2.addConstraint(Sketcher.Constraint("Equal", 48, 49))
sketch2.addConstraint(Sketcher.Constraint("Equal", 49, 50))
sketch2.addConstraint(Sketcher.Constraint("Equal", 50, 51))
sketch2.addConstraint(Sketcher.Constraint("Equal", 51, 52))
sketch2.addConstraint(Sketcher.Constraint("Equal", 52, 53))
sketch2.addConstraint(Sketcher.Constraint("Symmetric", 6, 2, 7, 2, -2))
sketch2.addConstraint(Sketcher.Constraint("Symmetric", 4, 2, 9, 2, -2))
sketch2.addConstraint(Sketcher.Constraint("Symmetric", 2, 2, 11, 2, -2))
sketch2.addConstraint(Sketcher.Constraint("Symmetric", 0, 2, 13, 2, -2))
sketch2.addConstraint(Sketcher.Constraint("Symmetric", 19, 2, 20, 2, -2))
sketch2.addConstraint(Sketcher.Constraint("Symmetric", 17, 2, 22, 2, -2))
sketch2.addConstraint(Sketcher.Constraint("Symmetric", 15, 2, 24, 2, -2))
sketch2.addConstraint(Sketcher.Constraint("Symmetric", 39, 2, 40, 2, -2))
sketch2.addConstraint(Sketcher.Constraint("Symmetric", 37, 2, 42, 2, -2))
sketch2.addConstraint(Sketcher.Constraint("Symmetric", 35, 2, 44, 2, -2))
sketch2.addConstraint(Sketcher.Constraint("Symmetric", 33, 2, 46, 2, -2))
sketch2.addConstraint(Sketcher.Constraint("Symmetric", 31, 2, 48, 2, -2))
sketch2.addConstraint(Sketcher.Constraint("Symmetric", 29, 2, 50, 2, -2))
sketch2.addConstraint(Sketcher.Constraint("Symmetric", 27, 2, 52, 2, -2))
sketch2.addConstraint(Sketcher.Constraint("PointOnObject", 26, 3, -2))
sketch2.addConstraint(Sketcher.Constraint("Vertical", 1, 2, 2, 2))
sketch2.addConstraint(Sketcher.Constraint("Vertical", 2, 2, 3, 2))
sketch2.addConstraint(Sketcher.Constraint("Vertical", 3, 2, 4, 2))
sketch2.addConstraint(Sketcher.Constraint("Vertical", 4, 2, 5, 2))
sketch2.addConstraint(Sketcher.Constraint("Vertical", 5, 2, 6, 2))
sketch2.addConstraint(Sketcher.Constraint("Vertical", 12, 2, 16, 2))
sketch2.addConstraint(Sketcher.Constraint("Vertical", 16, 2, 17, 2))
sketch2.addConstraint(Sketcher.Constraint("Vertical", 17, 2, 18, 2))
sketch2.addConstraint(Sketcher.Constraint("Vertical", 18, 2, 19, 2))
sketch2.addConstraint(Sketcher.Constraint("Vertical", 19, 2, 26, 2))
sketch2.addConstraint(Sketcher.Constraint("Vertical", 26, 2, 27, 2))
sketch2.addConstraint(Sketcher.Constraint("Vertical", 27, 2, 28, 2))
sketch2.addConstraint(Sketcher.Constraint("Vertical", 28, 2, 29, 2))
sketch2.addConstraint(Sketcher.Constraint("Vertical", 29, 2, 30, 2))
sketch2.addConstraint(Sketcher.Constraint("Vertical", 30, 2, 31, 2))
sketch2.addConstraint(Sketcher.Constraint("Vertical", 31, 2, 32, 2))
sketch2.addConstraint(Sketcher.Constraint("Vertical", 32, 2, 33, 2))
sketch2.addConstraint(Sketcher.Constraint("Vertical", 33, 2, 34, 2))
sketch2.addConstraint(Sketcher.Constraint("Vertical", 34, 2, 35, 2))
sketch2.addConstraint(Sketcher.Constraint("Vertical", 35, 2, 36, 2))
sketch2.addConstraint(Sketcher.Constraint("Vertical", 36, 2, 37, 2))
sketch2.addConstraint(Sketcher.Constraint("Vertical", 37, 2, 38, 2))
sketch2.addConstraint(Sketcher.Constraint("Vertical", 38, 2, 39, 2))
sketch2.addConstraint(Sketcher.Constraint("Radius", 2, Q("7.5 mm")))
sketch2.addConstraint(Sketcher.Constraint("DistanceX", 0, 2, -1, 1, Q("12.5 mm")))
sketch2.addConstraint(Sketcher.Constraint("DistanceY", -1, 1, 14, 2, Q("12.5 mm")))
sketch2.addConstraint(Sketcher.Constraint("DistanceX", 15, 2, 15, 1, Q("7.109328 mm")))
sketch2.addConstraint(Sketcher.Constraint("DistanceX", 1, 1, 1, 2, Q("5.428932 mm")))
sketch2.addConstraint(Sketcher.Constraint("DistanceY", 0, 1, 0, 2, Q("162.714466 mm")))
sketch2.addConstraint(Sketcher.Constraint("DistanceY", -1, 1, 26, 3, Q("57.714466 mm")))
pad2 = body.newObject("PartDesign::Pad", "Pad001")
pad2.Profile = sketch2
pad2.Length = 1.9
pad2.Reversed = True

# Sketch on XZ plane
sketch3 = body.newObject("Sketcher::SketchObject", "Sketch002")
sketch3.AttachmentSupport = (doc.getObject("XZ_Plane"), [""])
sketch3.MapMode = "FlatFace"
sketch3.addGeometry(Part.LineSegment(V(-12.5, 175.2, 0), V(-12.5, 177.2, 0)), False)
sketch3.addGeometry(Part.LineSegment(V(-12.5, 177.2, 0), V(-7.1, 177.2, 0)), False)
sketch3.addGeometry(Part.LineSegment(V(-7.1, 177.2, 0), V(-7.1, 175.2, 0)), False)
sketch3.addGeometry(Part.LineSegment(V(-7.1, 175.2, 0), V(-12.5, 175.2, 0)), False)
sketch3.addGeometry(Part.LineSegment(V(7.1, 175.2, 0), V(7.1, 177.2, 0)), False)
sketch3.addGeometry(Part.LineSegment(V(7.1, 177.2, 0), V(12.5, 177.2, 0)), False)
sketch3.addGeometry(Part.LineSegment(V(12.5, 177.2, 0), V(12.5, 175.2, 0)), False)
sketch3.addGeometry(Part.LineSegment(V(12.5, 175.2, 0), V(7.1, 175.2, 0)), False)
sketch3.addConstraint(Sketcher.Constraint("Coincident", 0, 2, 1, 1))
sketch3.addConstraint(Sketcher.Constraint("Coincident", 1, 2, 2, 1))
sketch3.addConstraint(Sketcher.Constraint("Coincident", 2, 2, 3, 1))
sketch3.addConstraint(Sketcher.Constraint("Coincident", 3, 2, 0, 1))
sketch3.addConstraint(Sketcher.Constraint("Coincident", 4, 2, 5, 1))
sketch3.addConstraint(Sketcher.Constraint("Coincident", 5, 2, 6, 1))
sketch3.addConstraint(Sketcher.Constraint("Coincident", 6, 2, 7, 1))
sketch3.addConstraint(Sketcher.Constraint("Coincident", 7, 2, 4, 1))
sketch3.addConstraint(Sketcher.Constraint("Vertical", 0))
sketch3.addConstraint(Sketcher.Constraint("Horizontal", 1))
sketch3.addConstraint(Sketcher.Constraint("Vertical", 2))
sketch3.addConstraint(Sketcher.Constraint("Horizontal", 3))
sketch3.addConstraint(Sketcher.Constraint("Vertical", 4))
sketch3.addConstraint(Sketcher.Constraint("Horizontal", 5))
sketch3.addConstraint(Sketcher.Constraint("Vertical", 6))
sketch3.addConstraint(Sketcher.Constraint("Horizontal", 7))
sketch3.addConstraint(Sketcher.Constraint("Symmetric", 1, 2, 4, 2, -2))
sketch3.addConstraint(Sketcher.Constraint("Symmetric", 3, 2, 6, 2, -2))
sketch3.addConstraint(Sketcher.Constraint("DistanceY", 0, 1, 0, 2, Q("2 mm")))
sketch3.addConstraint(Sketcher.Constraint("DistanceX", 0, 2, 5, 2, Q("25 mm")))
sketch3.addConstraint(Sketcher.Constraint("DistanceX", 1, 1, 1, 2, Q("5.428932 mm")))
sketch3.addConstraint(Sketcher.Constraint("DistanceY", -1, 1, 0, 2, Q("177.214466 mm")))
pad3 = body.newObject("PartDesign::Pad", "Pad002")
pad3.Profile = sketch3
pad3.Length = 0.95
pad3.Reversed = True

doc.recompute()
